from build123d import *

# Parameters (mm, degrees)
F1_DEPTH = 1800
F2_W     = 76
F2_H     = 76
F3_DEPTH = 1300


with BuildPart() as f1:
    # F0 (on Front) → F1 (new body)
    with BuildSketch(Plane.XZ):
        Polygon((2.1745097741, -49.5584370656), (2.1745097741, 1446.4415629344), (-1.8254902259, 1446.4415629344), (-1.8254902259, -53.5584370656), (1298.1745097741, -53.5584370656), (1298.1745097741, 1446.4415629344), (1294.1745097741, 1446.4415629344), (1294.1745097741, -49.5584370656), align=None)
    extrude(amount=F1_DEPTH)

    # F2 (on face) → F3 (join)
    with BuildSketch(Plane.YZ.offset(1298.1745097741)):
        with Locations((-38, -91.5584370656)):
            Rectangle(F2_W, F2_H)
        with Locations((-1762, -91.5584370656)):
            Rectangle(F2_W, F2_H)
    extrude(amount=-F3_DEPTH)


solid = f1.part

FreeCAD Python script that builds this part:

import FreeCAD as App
import Part
import Sketcher

V = App.Vector
Q = App.Units.Quantity

doc = App.newDocument("Part")
body = doc.addObject("PartDesign::Body", "Body")

# Sketch on XZ plane
sketch1 = body.newObject("Sketcher::SketchObject", "Sketch")
sketch1.AttachmentSupport = (doc.getObject("XZ_Plane"), [""])
sketch1.MapMode = "FlatFace"
sketch1.addGeometry(Part.LineSegment(V(2.17451, -49.558437, 0), V(2.17451, 1446.441563, 0)), False)
sketch1.addGeometry(Part.LineSegment(V(2.17451, 1446.441563, 0), V(-1.82549, 1446.441563, 0)), False)
sketch1.addGeometry(Part.LineSegment(V(-1.82549, 1446.441563, 0), V(-1.82549, -53.558437, 0)), False)
sketch1.addGeometry(Part.LineSegment(V(-1.82549, -53.558437, 0), V(1298.17451, -53.558437, 0)), False)
sketch1.addGeometry(Part.LineSegment(V(1298.17451, -53.558437, 0), V(1298.17451, 1446.441563, 0)), False)
sketch1.addGeometry(Part.LineSegment(V(1298.17451, 1446.441563, 0), V(1294.17451, 1446.441563, 0)), False)
sketch1.addGeometry(Part.LineSegment(V(1294.17451, 1446.441563, 0), V(1294.17451, -49.558437, 0)), False)
sketch1.addGeometry(Part.LineSegment(V(1294.17451, -49.558437, 0), V(2.17451, -49.558437, 0)), False)
sketch1.addConstraint(Sketcher.Constraint("Coincident", 0, 2, 1, 1))
sketch1.addConstraint(Sketcher.Constraint("Coincident", 1, 2, 2, 1))
sketch1.addConstraint(Sketcher.Constraint("Coincident", 2, 2, 3, 1))
sketch1.addConstraint(Sketcher.Constraint("Coincident", 3, 2, 4, 1))
sketch1.addConstraint(Sketcher.Constraint("Coincident", 4, 2, 5, 1))
sketch1.addConstraint(Sketcher.Constraint("Coincident", 5, 2, 6, 1))
sketch1.addConstraint(Sketcher.Constraint("Coincident", 6, 2, 7, 1))
sketch1.addConstraint(Sketcher.Constraint("Coincident", 7, 2, 0, 1))
sketch1.addConstraint(Sketcher.Constraint("Vertical", 0))
sketch1.addConstraint(Sketcher.Constraint("Horizontal", 1))
sketch1.addConstraint(Sketcher.Constraint("Vertical", 2))
sketch1.addConstraint(Sketcher.Constraint("Horizontal", 3))
sketch1.addConstraint(Sketcher.Constraint("Vertical", 4))
sketch1.addConstraint(Sketcher.Constraint("Horizontal", 5))
sketch1.addConstraint(Sketcher.Constraint("Vertical", 6))
sketch1.addConstraint(Sketcher.Constraint("Horizontal", 7))
sketch1.addConstraint(Sketcher.Constraint("Horizontal", 1, 2, 4, 2))
sketch1.addConstraint(Sketcher.Constraint("Equal", 1, 5))
sketch1.addConstraint(Sketcher.Constraint("DistanceX", 1, 2, 1, 1, Q("4 mm")))
sketch1.addConstraint(Sketcher.Constraint("DistanceX", 3, 1, 3, 2, Q("1300 mm")))
sketch1.addConstraint(Sketcher.Constraint("DistanceY", 0, 1, 0, 2, Q("1496 mm")))
sketch1.addConstraint(Sketcher.Constraint("DistanceY", 2, 2, 2, 1, Q("1500 mm")))
sketch1.addConstraint(Sketcher.Constraint("DistanceX", -1, 1, 0, 2, Q("2.17451 mm")))
sketch1.addConstraint(Sketcher.Constraint("DistanceY", -1, 1, 0, 2, Q("1446.441563 mm")))
pad1 = body.newObject("PartDesign::Pad", "Pad")
pad1.Profile = sketch1
pad1.Length = 1800

# Sketch on YZ plane
sketch2 = body.newObject("Sketcher::SketchObject", "Sketch001")
sketch2.AttachmentSupport = (doc.getObject("YZ_Plane"), [""])
sketch2.MapMode = "FlatFace"
sketch2.AttachmentOffset = App.Placement(V(0, 0, 1298.17451), App.Rotation())
sketch2.addGeometry(Part.LineSegment(V(-76, -53.558437, 0), V(-76, -129.558437, 0)), False)
sketch2.addGeometry(Part.LineSegment(V(-76, -129.558437, 0), V(0, -129.558437, 0)), False)
sketch2.addGeometry(Part.LineSegment(V(0, -129.558437, 0), V(0, -53.558437, 0)), False)
sketch2.addGeometry(Part.LineSegment(V(0, -53.558437, 0), V(-76, -53.558437, 0)), False)
sketch2.addGeometry(Part.LineSegment(V(-1800, -53.558437, 0), V(-1800, -129.558437, 0)), False)
sketch2.addGeometry(Part.LineSegment(V(-1800, -129.558437, 0), V(-1724, -129.558437, 0)), False)
sketch2.addGeometry(Part.LineSegment(V(-1724, -129.558437, 0), V(-1724, -53.558437, 0)), False)
sketch2.addGeometry(Part.LineSegment(V(-1724, -53.558437, 0), V(-1800, -53.558437, 0)), False)
sketch2.addConstraint(Sketcher.Constraint("Coincident", 0, 2, 1, 1))
sketch2.addConstraint(Sketcher.Constraint("Coincident", 1, 2, 2, 1))
sketch2.addConstraint(Sketcher.Constraint("Coincident", 2, 2, 3, 1))
sketch2.addConstraint(Sketcher.Constraint("Coincident", 3, 2, 0, 1))
sketch2.addConstraint(Sketcher.Constraint("Coincident", 4, 2, 5, 1))
sketch2.addConstraint(Sketcher.Constraint("Coincident", 5, 2, 6, 1))
sketch2.addConstraint(Sketcher.Constraint("Coincident", 6, 2, 7, 1))
sketch2.addConstraint(Sketcher.Constraint("Coincident", 7, 2, 4, 1))
sketch2.addConstraint(Sketcher.Constraint("Vertical", 0))
sketch2.addConstraint(Sketcher.Constraint("Horizontal", 1))
sketch2.addConstraint(Sketcher.Constraint("Vertical", 2))
sketch2.addConstraint(Sketcher.Constraint("Horizontal", 3))
sketch2.addConstraint(Sketcher.Constraint("Vertical", 4))
sketch2.addConstraint(Sketcher.Constraint("Horizontal", 5))
sketch2.addConstraint(Sketcher.Constraint("Vertical", 6))
sketch2.addConstraint(Sketcher.Constraint("Horizontal", 7))
sketch2.addConstraint(Sketcher.Constraint("PointOnObject", 1, 2, -2))
sketch2.addConstraint(Sketcher.Constraint("Horizontal", 1, 2, 4, 2))
sketch2.addConstraint(Sketcher.Constraint("Horizontal", 3, 2, 6, 2))
sketch2.addConstraint(Sketcher.Constraint("Equal", 3, 5))
sketch2.addConstraint(Sketcher.Constraint("Equal", 7, 0))
sketch2.addConstraint(Sketcher.Constraint("DistanceX", 1, 1, 1, 2, Q("76 mm")))
sketch2.addConstraint(Sketcher.Constraint("DistanceX", 4, 2, -1, 1, Q("1800 mm")))
sketch2.addConstraint(Sketcher.Constraint("DistanceY", 0, 2, -1, 1, Q("129.558437 mm")))
pad2 = body.newObject("PartDesign::Pad", "Pad001")
pad2.Profile = sketch2
pad2.Length = 1300
pad2.Reversed = True

doc.recompute()
